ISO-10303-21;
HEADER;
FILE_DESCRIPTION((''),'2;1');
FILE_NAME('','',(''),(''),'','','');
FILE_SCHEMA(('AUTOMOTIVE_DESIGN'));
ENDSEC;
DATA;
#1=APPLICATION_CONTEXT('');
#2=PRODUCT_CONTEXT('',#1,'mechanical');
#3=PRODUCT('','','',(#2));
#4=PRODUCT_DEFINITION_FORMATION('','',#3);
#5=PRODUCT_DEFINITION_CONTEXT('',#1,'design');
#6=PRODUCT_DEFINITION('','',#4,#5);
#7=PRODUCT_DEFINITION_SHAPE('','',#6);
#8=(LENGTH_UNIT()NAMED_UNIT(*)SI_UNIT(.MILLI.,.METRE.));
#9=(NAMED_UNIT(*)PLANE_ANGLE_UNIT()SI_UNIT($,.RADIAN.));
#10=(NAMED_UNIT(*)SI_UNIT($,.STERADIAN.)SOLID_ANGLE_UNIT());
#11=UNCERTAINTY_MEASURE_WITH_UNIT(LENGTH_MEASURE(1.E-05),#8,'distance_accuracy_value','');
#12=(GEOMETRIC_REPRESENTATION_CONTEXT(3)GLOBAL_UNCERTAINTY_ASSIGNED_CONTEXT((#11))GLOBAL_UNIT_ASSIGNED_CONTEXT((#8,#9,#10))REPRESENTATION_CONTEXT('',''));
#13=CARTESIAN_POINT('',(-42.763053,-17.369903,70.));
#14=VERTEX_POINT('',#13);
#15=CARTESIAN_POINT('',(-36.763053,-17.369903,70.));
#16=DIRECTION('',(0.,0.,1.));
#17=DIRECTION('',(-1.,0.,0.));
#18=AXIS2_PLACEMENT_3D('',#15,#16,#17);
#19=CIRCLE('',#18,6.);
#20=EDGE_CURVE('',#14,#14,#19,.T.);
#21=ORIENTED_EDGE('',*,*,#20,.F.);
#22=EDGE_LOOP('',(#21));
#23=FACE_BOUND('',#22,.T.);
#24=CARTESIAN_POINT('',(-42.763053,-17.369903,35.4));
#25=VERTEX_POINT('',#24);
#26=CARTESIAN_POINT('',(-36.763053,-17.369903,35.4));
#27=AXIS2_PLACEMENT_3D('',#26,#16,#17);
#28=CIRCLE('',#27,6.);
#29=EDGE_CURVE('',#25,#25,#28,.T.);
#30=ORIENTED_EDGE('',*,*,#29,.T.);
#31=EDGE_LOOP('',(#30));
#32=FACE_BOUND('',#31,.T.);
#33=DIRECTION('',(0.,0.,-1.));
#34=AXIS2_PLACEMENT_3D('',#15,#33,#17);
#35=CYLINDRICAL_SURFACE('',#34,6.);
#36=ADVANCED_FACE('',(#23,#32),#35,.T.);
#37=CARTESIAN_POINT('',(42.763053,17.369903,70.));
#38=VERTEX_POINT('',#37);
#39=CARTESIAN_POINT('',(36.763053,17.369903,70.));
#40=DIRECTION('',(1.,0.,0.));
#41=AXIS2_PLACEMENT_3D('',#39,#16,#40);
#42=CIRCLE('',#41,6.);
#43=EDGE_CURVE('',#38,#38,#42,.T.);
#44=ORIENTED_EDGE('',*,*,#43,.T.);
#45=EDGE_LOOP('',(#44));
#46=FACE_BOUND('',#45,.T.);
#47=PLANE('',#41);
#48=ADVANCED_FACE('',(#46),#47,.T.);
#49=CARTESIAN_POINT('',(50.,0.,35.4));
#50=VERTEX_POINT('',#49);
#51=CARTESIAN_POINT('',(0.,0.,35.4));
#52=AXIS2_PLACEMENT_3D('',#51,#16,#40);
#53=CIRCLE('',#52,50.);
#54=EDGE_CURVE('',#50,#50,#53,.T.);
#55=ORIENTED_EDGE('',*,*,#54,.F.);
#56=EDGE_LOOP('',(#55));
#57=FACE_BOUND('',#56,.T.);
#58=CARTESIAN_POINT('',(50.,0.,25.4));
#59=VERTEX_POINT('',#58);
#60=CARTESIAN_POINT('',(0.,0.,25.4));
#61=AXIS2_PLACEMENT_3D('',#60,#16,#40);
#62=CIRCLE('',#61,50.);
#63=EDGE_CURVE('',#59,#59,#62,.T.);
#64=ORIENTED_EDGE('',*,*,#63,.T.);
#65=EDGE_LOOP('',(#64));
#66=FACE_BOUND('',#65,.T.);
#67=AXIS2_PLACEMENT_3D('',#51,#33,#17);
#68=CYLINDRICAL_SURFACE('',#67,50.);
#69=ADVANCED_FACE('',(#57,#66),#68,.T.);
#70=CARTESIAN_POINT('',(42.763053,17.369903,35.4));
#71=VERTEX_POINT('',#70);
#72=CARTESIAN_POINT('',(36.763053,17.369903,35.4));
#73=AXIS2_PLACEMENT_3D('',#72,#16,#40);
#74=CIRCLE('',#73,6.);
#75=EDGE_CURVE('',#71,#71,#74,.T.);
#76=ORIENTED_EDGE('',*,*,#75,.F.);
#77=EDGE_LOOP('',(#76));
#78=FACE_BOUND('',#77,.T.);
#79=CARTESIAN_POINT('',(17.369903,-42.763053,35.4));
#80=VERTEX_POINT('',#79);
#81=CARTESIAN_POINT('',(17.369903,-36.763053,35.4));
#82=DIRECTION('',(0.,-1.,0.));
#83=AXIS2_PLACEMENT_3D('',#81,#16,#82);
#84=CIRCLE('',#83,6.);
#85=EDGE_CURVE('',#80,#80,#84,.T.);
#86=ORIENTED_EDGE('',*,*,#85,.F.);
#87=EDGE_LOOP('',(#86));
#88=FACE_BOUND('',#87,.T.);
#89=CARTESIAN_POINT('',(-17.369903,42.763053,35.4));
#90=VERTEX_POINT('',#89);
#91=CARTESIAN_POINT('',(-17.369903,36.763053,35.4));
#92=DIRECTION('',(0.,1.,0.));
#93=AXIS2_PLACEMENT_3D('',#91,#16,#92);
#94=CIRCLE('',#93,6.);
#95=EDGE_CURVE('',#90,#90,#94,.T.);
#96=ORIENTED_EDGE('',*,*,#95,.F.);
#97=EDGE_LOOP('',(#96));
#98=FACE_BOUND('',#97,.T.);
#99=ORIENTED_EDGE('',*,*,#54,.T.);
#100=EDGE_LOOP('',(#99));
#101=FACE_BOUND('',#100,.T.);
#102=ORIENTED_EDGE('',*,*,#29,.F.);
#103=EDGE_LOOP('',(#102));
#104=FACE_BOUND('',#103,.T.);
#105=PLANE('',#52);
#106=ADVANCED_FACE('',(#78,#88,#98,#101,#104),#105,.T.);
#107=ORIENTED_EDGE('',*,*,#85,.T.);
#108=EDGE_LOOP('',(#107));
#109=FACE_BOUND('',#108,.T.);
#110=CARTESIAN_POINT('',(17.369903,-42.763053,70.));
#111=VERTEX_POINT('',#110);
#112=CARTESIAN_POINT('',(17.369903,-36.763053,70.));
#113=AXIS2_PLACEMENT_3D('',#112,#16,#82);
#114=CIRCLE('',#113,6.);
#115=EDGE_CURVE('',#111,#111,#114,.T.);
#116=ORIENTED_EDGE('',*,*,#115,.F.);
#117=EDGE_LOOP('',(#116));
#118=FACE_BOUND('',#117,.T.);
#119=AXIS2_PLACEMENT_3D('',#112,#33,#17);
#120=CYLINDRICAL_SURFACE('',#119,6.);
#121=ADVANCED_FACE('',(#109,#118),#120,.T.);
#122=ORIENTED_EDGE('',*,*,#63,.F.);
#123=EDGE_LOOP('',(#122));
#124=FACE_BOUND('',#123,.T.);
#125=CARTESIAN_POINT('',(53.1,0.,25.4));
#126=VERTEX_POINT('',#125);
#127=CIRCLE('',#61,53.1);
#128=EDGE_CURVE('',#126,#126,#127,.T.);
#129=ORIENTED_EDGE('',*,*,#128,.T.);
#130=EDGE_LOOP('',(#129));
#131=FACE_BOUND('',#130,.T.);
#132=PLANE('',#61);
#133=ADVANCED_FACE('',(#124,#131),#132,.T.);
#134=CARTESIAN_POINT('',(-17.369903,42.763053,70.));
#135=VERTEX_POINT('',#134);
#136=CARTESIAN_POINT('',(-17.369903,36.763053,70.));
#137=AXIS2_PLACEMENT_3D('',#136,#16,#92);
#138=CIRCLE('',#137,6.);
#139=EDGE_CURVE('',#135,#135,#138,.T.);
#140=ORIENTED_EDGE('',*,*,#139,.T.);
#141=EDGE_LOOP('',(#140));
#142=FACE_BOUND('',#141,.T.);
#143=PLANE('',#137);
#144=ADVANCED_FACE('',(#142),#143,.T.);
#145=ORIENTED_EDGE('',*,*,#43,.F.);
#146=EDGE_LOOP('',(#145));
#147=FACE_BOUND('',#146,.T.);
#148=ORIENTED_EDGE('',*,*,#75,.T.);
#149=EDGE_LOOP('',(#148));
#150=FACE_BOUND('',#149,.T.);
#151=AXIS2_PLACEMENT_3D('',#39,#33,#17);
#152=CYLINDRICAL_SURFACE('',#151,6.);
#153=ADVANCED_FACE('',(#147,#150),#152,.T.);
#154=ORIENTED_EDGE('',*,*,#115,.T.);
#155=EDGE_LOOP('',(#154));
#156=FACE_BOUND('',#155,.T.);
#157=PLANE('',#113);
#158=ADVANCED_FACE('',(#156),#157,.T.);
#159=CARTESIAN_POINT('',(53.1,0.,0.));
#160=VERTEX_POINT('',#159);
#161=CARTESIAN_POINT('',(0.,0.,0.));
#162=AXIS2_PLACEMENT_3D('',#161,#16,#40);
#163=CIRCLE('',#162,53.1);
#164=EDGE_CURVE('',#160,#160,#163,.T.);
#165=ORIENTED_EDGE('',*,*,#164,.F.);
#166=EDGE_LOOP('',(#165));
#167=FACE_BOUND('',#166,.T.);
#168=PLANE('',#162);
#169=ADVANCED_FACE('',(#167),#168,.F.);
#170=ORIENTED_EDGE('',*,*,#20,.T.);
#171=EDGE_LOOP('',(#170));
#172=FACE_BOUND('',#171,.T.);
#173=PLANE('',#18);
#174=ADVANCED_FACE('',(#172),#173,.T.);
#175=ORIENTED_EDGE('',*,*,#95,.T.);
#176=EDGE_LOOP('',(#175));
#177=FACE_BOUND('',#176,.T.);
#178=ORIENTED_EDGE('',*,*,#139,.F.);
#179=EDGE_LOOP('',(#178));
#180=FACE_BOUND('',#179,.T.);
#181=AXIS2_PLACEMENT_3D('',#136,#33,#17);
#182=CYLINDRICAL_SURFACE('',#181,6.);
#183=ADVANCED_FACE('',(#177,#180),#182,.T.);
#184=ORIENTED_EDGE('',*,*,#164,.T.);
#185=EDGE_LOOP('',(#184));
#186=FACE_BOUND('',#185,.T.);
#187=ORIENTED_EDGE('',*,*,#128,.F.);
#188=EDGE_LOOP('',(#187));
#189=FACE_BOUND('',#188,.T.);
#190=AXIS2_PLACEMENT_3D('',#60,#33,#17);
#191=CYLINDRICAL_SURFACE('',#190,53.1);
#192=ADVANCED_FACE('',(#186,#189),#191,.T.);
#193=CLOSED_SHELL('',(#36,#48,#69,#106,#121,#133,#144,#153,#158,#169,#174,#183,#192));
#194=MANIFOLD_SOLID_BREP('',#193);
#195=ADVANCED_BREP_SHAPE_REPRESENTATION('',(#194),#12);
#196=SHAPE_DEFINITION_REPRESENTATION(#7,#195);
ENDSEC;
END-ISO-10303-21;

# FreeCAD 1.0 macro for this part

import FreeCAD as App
import Part
import Sketcher

V = App.Vector

doc = App.newDocument("Part")
body = doc.addObject("PartDesign::Body", "Body")

# Sketch on XY plane
sketch1 = body.newObject("Sketcher::SketchObject", "Sketch")
sketch1.AttachmentSupport = (doc.getObject("XY_Plane"), [""])
sketch1.MapMode = "FlatFace"
sketch1.addGeometry(Part.Circle(V(0, 0, 0), V(0, 0, 1), 53), False)
sketch1.addConstraint(Sketcher.Constraint("Coincident", 0, 3, -1, 1))
sketch1.addConstraint(Sketcher.Constraint("Diameter", 0, 106.2))
pad1 = body.newObject("PartDesign::Pad", "Pad")
pad1.Profile = sketch1
pad1.Length = 25.4

# Sketch on XY plane
sketch2 = body.newObject("Sketcher::SketchObject", "Sketch001")
sketch2.AttachmentSupport = (doc.getObject("XY_Plane"), [""])
sketch2.MapMode = "FlatFace"
sketch2.AttachmentOffset = App.Placement(V(0, 0, 25.4), App.Rotation())
sketch2.addGeometry(Part.Circle(V(0, 0, 0), V(0, 0, 1), 50), False)
sketch2.addConstraint(Sketcher.Constraint("Coincident", 0, 3, -1, 1))
sketch2.addConstraint(Sketcher.Constraint("Diameter", 0, 100.0))
pad2 = body.newObject("PartDesign::Pad", "Pad001")
pad2.Profile = sketch2
pad2.Length = 10

# Sketch on XY plane
sketch3 = body.newObject("Sketcher::SketchObject", "Sketch002")
sketch3.AttachmentSupport = (doc.getObject("XY_Plane"), [""])
sketch3.MapMode = "FlatFace"
sketch3.AttachmentOffset = App.Placement(V(0, 0, 35.4), App.Rotation())
sketch3.addGeometry(Part.Circle(V(37, 17, 0), V(0, 0, 1), 6), False)
sketch3.addConstraint(Sketcher.Constraint("Diameter", 0, 12.0))
sketch3.addConstraint(Sketcher.Constraint("DistanceX", -1, 1, 0, 3, 36.763053))
sketch3.addConstraint(Sketcher.Constraint("DistanceY", -1, 1, 0, 3, 17.369903))
pad3 = body.newObject("PartDesign::Pad", "Pad002")
pad3.Profile = sketch3
pad3.Length = 34.6
doc.recompute()

polarpattern = body.newObject("PartDesign::PolarPattern", "PolarPattern")
polarpattern.Originals = [pad3]
polarpattern.Axis = (doc.getObject("Z_Axis"), [""])
polarpattern.Angle = 360
polarpattern.Occurrences = 4
body.Tip = polarpattern

doc.recompute()
